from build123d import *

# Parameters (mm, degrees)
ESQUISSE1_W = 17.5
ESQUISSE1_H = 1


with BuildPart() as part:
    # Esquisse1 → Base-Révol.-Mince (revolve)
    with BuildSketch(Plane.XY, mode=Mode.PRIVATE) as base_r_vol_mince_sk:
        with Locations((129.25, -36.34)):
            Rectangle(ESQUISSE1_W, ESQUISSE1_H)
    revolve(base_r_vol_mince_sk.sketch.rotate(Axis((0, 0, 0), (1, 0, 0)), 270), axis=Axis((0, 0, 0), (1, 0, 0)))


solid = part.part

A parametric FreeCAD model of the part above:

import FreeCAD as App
import Part
import Sketcher


def add_polygon(sketch, points):
    """Adds a closed chain of lines whose ends are joined by coincident constraints."""
    first, n = sketch.GeometryCount, len(points)
    for a, b in zip(points, points[1:] + points[:1]):
        sketch.addGeometry(Part.LineSegment(App.Vector(*a, 0), App.Vector(*b, 0)), False)
    for i in range(n):
        sketch.addConstraint(Sketcher.Constraint("Coincident", first + i, 2, first + (i + 1) % n, 1))

doc = App.newDocument("Part")
body = doc.addObject("PartDesign::Body", "Body")

# Sketch on XY plane
sketch1 = body.newObject("Sketcher::SketchObject", "Sketch")
sketch1.AttachmentSupport = (doc.getObject("XY_Plane"), [""])
sketch1.MapMode = "FlatFace"
add_polygon(sketch1, [(120.5, -35.84), (120.5, -36.84), (138, -36.84), (138, -35.84)])  # lines 0-3
sketch1.addConstraint([
    Sketcher.Constraint("Vertical", 0),
    Sketcher.Constraint("Horizontal", 1),
    Sketcher.Constraint("Vertical", 2),
    Sketcher.Constraint("Horizontal", 3),
    Sketcher.Constraint("DistanceY", 0, 2, 0, 1, 1.0),
    Sketcher.Constraint("DistanceX", 1, 1, 1, 2, 17.5),
    Sketcher.Constraint("DistanceX", -1, 1, 1, 2, 138.0),
    Sketcher.Constraint("DistanceY", 0, 2, -1, 1, 36.84),
])
revolution = body.newObject("PartDesign::Revolution", "Revolution")
revolution.Profile = sketch1
revolution.ReferenceAxis = (sketch1, ["H_Axis"])
revolution.Angle = 360

doc.recompute()
